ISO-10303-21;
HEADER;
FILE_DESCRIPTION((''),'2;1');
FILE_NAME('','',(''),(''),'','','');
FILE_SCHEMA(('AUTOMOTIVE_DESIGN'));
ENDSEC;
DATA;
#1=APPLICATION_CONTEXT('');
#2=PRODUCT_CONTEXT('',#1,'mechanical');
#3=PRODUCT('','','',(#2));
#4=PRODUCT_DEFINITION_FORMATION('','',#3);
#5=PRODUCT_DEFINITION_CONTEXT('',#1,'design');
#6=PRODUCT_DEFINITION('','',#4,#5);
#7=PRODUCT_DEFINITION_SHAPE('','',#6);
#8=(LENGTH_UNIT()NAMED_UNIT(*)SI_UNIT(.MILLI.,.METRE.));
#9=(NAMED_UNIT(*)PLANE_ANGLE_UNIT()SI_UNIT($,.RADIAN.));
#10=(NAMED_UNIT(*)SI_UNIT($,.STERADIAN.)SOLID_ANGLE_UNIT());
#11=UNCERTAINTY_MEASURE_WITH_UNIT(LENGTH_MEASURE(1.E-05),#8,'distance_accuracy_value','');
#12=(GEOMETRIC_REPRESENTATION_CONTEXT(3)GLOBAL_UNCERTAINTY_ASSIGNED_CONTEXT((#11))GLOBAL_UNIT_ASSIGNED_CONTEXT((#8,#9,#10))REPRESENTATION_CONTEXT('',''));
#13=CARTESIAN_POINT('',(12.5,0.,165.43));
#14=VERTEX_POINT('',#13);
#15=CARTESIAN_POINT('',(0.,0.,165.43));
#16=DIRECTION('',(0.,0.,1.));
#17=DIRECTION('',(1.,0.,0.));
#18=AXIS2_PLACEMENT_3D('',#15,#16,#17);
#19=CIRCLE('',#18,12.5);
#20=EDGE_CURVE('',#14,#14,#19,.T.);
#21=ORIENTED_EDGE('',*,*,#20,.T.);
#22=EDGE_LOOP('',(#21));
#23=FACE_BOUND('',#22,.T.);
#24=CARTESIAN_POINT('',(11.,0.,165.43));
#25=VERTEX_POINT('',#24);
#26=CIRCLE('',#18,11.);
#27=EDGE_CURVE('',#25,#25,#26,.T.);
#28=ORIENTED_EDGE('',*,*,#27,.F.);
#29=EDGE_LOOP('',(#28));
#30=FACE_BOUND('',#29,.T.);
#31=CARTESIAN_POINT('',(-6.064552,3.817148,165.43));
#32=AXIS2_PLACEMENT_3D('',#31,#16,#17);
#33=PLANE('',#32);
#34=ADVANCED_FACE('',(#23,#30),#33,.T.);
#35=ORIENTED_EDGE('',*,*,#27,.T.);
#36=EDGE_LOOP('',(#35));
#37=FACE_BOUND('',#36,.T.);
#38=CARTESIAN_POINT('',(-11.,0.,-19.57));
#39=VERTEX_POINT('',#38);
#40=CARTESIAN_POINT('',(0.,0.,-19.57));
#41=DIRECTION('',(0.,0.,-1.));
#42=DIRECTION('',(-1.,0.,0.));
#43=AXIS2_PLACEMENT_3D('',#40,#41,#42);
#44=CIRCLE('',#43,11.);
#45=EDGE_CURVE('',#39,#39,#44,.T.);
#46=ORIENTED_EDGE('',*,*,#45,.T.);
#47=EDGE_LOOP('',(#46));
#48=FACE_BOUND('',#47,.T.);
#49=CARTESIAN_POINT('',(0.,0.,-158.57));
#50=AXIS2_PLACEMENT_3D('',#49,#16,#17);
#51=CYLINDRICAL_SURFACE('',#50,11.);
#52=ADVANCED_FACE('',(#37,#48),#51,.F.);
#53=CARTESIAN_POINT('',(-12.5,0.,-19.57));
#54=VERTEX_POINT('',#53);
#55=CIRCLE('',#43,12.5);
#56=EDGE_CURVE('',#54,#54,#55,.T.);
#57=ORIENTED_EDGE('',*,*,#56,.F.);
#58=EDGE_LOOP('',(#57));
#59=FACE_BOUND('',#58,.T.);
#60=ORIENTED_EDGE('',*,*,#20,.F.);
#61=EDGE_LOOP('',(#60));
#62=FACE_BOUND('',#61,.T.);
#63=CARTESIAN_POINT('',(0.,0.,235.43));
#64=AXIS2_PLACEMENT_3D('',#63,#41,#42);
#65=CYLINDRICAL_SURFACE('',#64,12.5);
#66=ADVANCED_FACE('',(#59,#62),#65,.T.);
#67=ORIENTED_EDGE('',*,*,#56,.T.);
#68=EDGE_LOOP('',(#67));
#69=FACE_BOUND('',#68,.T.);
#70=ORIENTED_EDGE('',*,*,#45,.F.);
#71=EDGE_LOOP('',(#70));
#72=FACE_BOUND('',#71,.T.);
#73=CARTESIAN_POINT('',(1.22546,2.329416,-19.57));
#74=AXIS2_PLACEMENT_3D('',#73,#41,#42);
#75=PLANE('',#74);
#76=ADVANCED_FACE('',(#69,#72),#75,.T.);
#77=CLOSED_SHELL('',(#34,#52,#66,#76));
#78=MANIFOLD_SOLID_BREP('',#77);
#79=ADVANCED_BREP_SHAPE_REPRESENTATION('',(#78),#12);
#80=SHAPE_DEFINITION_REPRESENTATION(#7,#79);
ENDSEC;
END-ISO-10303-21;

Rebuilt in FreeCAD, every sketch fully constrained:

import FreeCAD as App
import Part
import Sketcher
from FreeCAD import Vector

doc = App.newDocument("Part")
body = doc.addObject("PartDesign::Body", "Body")

sketch1 = body.newObject("Sketcher::SketchObject", "Sketch")
sketch1.AttachmentSupport = (doc.getObject("XY_Plane"), [""])
sketch1.MapMode = "FlatFace"
sketch1.addGeometry(Part.Circle(Vector(0, 0, 0), Vector(0, 0, 1), 12), False)
sketch1.addConstraint([
    Sketcher.Constraint("Coincident", 0, 3, -1, 1),
    Sketcher.Constraint("Diameter", 0, 25.0),
])
pad1 = body.newObject("PartDesign::Pad", "Pad")
pad1.Profile = sketch1
pad1.Length = 235.43

sketch2 = body.newObject("Sketcher::SketchObject", "Sketch001")
sketch2.AttachmentSupport = (doc.getObject("XY_Plane"), [""])
sketch2.MapMode = "FlatFace"
sketch2.addGeometry(Part.Circle(Vector(0, 0, 0), Vector(0, 0, 1), 9), False)
sketch2.addConstraint([
    Sketcher.Constraint("Coincident", 0, 3, -1, 1),
    Sketcher.Constraint("Diameter", 0, 18.0),
])
pocket1 = body.newObject("PartDesign::Pocket", "Pocket")
pocket1.Profile = sketch2
pocket1.Length = 235.43
pocket1.Reversed = True

sketch3 = body.newObject("Sketcher::SketchObject", "Sketch002")
sketch3.AttachmentSupport = (doc.getObject("XY_Plane"), [""])
sketch3.MapMode = "FlatFace"
sketch3.AttachmentOffset = App.Placement(Vector(0, 0, -15.57), App.Rotation())
sketch3.addGeometry(Part.Circle(Vector(0, 0, 0), Vector(0, 0, 1), 12), False)
sketch3.addConstraint([
    Sketcher.Constraint("Coincident", 0, 3, -1, 1),
    Sketcher.Constraint("Diameter", 0, 25.0),
])
pad2 = body.newObject("PartDesign::Pad", "Pad001")
pad2.Profile = sketch3
pad2.Length = 15.57

sketch4 = body.newObject("Sketcher::SketchObject", "Sketch003")
sketch4.AttachmentSupport = (doc.getObject("XY_Plane"), [""])
sketch4.MapMode = "FlatFace"
sketch4.AttachmentOffset = App.Placement(Vector(0, 0, -15.57), App.Rotation())
sketch4.addGeometry(Part.Circle(Vector(0, 0, 0), Vector(0, 0, 1), 9), False)
sketch4.addConstraint([
    Sketcher.Constraint("Coincident", 0, 3, -1, 1),
    Sketcher.Constraint("Diameter", 0, 18.0),
])
pocket2 = body.newObject("PartDesign::Pocket", "Pocket001")
pocket2.Profile = sketch4
pocket2.Length = 20
pocket2.Reversed = True

sketch5 = body.newObject("Sketcher::SketchObject", "Sketch004")
sketch5.AttachmentSupport = (doc.getObject("XY_Plane"), [""])
sketch5.MapMode = "FlatFace"
sketch5.AttachmentOffset = App.Placement(Vector(0, 0, -25.5), App.Rotation())
sketch5.addGeometry(Part.Circle(Vector(0, 0, 0), Vector(0, 0, 1), 12), False)
sketch5.addConstraint([
    Sketcher.Constraint("Coincident", 0, 3, -1, 1),
    Sketcher.Constraint("Diameter", 0, 25.0),
])
pad3 = body.newObject("PartDesign::Pad", "Pad002")
pad3.Profile = sketch5
pad3.Length = 9.93

sketch6 = body.newObject("Sketcher::SketchObject", "Sketch005")
sketch6.AttachmentSupport = (doc.getObject("XY_Plane"), [""])
sketch6.MapMode = "FlatFace"
sketch6.AttachmentOffset = App.Placement(Vector(0, 0, -25.5), App.Rotation())
sketch6.addGeometry(Part.Circle(Vector(0, 0, 0), Vector(0, 0, 1), 9), False)
sketch6.addConstraint([
    Sketcher.Constraint("Coincident", 0, 3, -1, 1),
    Sketcher.Constraint("Diameter", 0, 18.0),
])
pocket3 = body.newObject("PartDesign::Pocket", "Pocket002")
pocket3.Profile = sketch6
pocket3.Length = 10
pocket3.Reversed = True

sketch7 = body.newObject("Sketcher::SketchObject", "Sketch006")
sketch7.AttachmentSupport = (doc.getObject("XY_Plane"), [""])
sketch7.MapMode = "FlatFace"
sketch7.AttachmentOffset = App.Placement(Vector(0, 0, -25.5), App.Rotation())
sketch7.addGeometry(Part.Circle(Vector(0, 0, 0), Vector(0, 0, 1), 27), False)
sketch7.addConstraint([
    Sketcher.Constraint("Coincident", 0, 3, -1, 1),
    Sketcher.Constraint("Diameter", 0, 53.716975),
])
pocket4 = body.newObject("PartDesign::Pocket", "Pocket003")
pocket4.Profile = sketch7
pocket4.Length = 14.93
pocket4.Reversed = True

sketch8 = body.newObject("Sketcher::SketchObject", "Sketch007")
sketch8.AttachmentSupport = (doc.getObject("XY_Plane"), [""])
sketch8.MapMode = "FlatFace"
sketch8.AttachmentOffset = App.Placement(Vector(0, 0, -20.5), App.Rotation())
sketch8.addGeometry(Part.Circle(Vector(0, 0, 0), Vector(0, 0, 1), 12), False)
sketch8.addConstraint([
    Sketcher.Constraint("Coincident", 0, 3, -1, 1),
    Sketcher.Constraint("Diameter", 0, 25.0),
])
pad4 = body.newObject("PartDesign::Pad", "Pad003")
pad4.Profile = sketch8
pad4.Length = 9.93

sketch9 = body.newObject("Sketcher::SketchObject", "Sketch008")
sketch9.AttachmentSupport = (doc.getObject("XY_Plane"), [""])
sketch9.MapMode = "FlatFace"
sketch9.AttachmentOffset = App.Placement(Vector(0, 0, -20.5), App.Rotation())
sketch9.addGeometry(Part.Circle(Vector(0, 0, 0), Vector(0, 0, 1), 9), False)
sketch9.addConstraint([
    Sketcher.Constraint("Coincident", 0, 3, -1, 1),
    Sketcher.Constraint("Diameter", 0, 18.0),
])
pocket5 = body.newObject("PartDesign::Pocket", "Pocket004")
pocket5.Profile = sketch9
pocket5.Length = 10
pocket5.Reversed = True

sketch10 = body.newObject("Sketcher::SketchObject", "Sketch009")
sketch10.AttachmentSupport = (doc.getObject("XY_Plane"), [""])
sketch10.MapMode = "FlatFace"
sketch10.AttachmentOffset = App.Placement(Vector(0, 0, -20.5), App.Rotation())
sketch10.addGeometry(Part.Circle(Vector(-7, 8, 0), Vector(0, 0, 1), 37), False)
sketch10.addConstraint([
    Sketcher.Constraint("Diameter", 0, 74.386789),
    Sketcher.Constraint("DistanceY", -1, 1, 0, 3, 7.507889),
    Sketcher.Constraint("DistanceX", 0, 3, -1, 1, 7.201745),
])
pocket6 = body.newObject("PartDesign::Pocket", "Pocket005")
pocket6.Profile = sketch10
pocket6.Length = 0.22
pocket6.Reversed = True

sketch11 = body.newObject("Sketcher::SketchObject", "Sketch010")
sketch11.AttachmentSupport = (doc.getObject("XY_Plane"), [""])
sketch11.MapMode = "FlatFace"
sketch11.AttachmentOffset = App.Placement(Vector(0, 0, -20.28), App.Rotation())
sketch11.addGeometry(Part.Circle(Vector(1, 2, 0), Vector(0, 0, 1), 43), False)
sketch11.addConstraint([
    Sketcher.Constraint("Diameter", 0, 86.374377),
    Sketcher.Constraint("DistanceX", -1, 1, 0, 3, 1.22546),
    Sketcher.Constraint("DistanceY", -1, 1, 0, 3, 2.329416),
])
pocket7 = body.newObject("PartDesign::Pocket", "Pocket006")
pocket7.Profile = sketch11
pocket7.Length = 0.71
pocket7.Reversed = True

sketch12 = body.newObject("Sketcher::SketchObject", "Sketch011")
sketch12.AttachmentSupport = (doc.getObject("XY_Plane"), [""])
sketch12.MapMode = "FlatFace"
sketch12.AttachmentOffset = App.Placement(Vector(0, 0, 235.43), App.Rotation())
sketch12.addGeometry(Part.Circle(Vector(0, 0, 0), Vector(0, 0, 1), 12), False)
sketch12.addConstraint([
    Sketcher.Constraint("Coincident", 0, 3, -1, 1),
    Sketcher.Constraint("Diameter", 0, 25.0),
])
pad5 = body.newObject("PartDesign::Pad", "Pad004")
pad5.Profile = sketch12
pad5.Length = 15

sketch13 = body.newObject("Sketcher::SketchObject", "Sketch012")
sketch13.AttachmentSupport = (doc.getObject("XY_Plane"), [""])
sketch13.MapMode = "FlatFace"
sketch13.AttachmentOffset = App.Placement(Vector(0, 0, 235.43), App.Rotation())
sketch13.addGeometry(Part.Circle(Vector(0, 0, 0), Vector(0, 0, 1), 9), False)
sketch13.addConstraint([
    Sketcher.Constraint("Coincident", 0, 3, -1, 1),
    Sketcher.Constraint("Diameter", 0, 18.0),
])
pocket8 = body.newObject("PartDesign::Pocket", "Pocket007")
pocket8.Profile = sketch13
pocket8.Length = 15
pocket8.Reversed = True

sketch14 = body.newObject("Sketcher::SketchObject", "Sketch013")
sketch14.AttachmentSupport = (doc.getObject("XY_Plane"), [""])
sketch14.MapMode = "FlatFace"
sketch14.AttachmentOffset = App.Placement(Vector(0, 0, 250.43), App.Rotation())
sketch14.addGeometry(Part.Circle(Vector(-6, 4, 0), Vector(0, 0, 1), 46), False)
sketch14.addConstraint([
    Sketcher.Constraint("Diameter", 0, 92.854111),
    Sketcher.Constraint("DistanceX", 0, 3, -1, 1, 6.064552),
    Sketcher.Constraint("DistanceY", -1, 1, 0, 3, 3.817148),
])
pocket9 = body.newObject("PartDesign::Pocket", "Pocket008")
pocket9.Profile = sketch14
pocket9.Length = 85

sketch15 = body.newObject("Sketcher::SketchObject", "Sketch014")
sketch15.AttachmentSupport = (doc.getObject("XY_Plane"), [""])
sketch15.MapMode = "FlatFace"
sketch15.AttachmentOffset = App.Placement(Vector(0, 0, 165.43), App.Rotation())
sketch15.addGeometry(Part.Circle(Vector(0, 0, 0), Vector(0, 0, 1), 11), False)
sketch15.addConstraint([
    Sketcher.Constraint("Coincident", 0, 3, -1, 1),
    Sketcher.Constraint("Diameter", 0, 22.0),
])
pocket10 = body.newObject("PartDesign::Pocket", "Pocket009")
pocket10.Profile = sketch15
pocket10.Length = 324

doc.recompute()
